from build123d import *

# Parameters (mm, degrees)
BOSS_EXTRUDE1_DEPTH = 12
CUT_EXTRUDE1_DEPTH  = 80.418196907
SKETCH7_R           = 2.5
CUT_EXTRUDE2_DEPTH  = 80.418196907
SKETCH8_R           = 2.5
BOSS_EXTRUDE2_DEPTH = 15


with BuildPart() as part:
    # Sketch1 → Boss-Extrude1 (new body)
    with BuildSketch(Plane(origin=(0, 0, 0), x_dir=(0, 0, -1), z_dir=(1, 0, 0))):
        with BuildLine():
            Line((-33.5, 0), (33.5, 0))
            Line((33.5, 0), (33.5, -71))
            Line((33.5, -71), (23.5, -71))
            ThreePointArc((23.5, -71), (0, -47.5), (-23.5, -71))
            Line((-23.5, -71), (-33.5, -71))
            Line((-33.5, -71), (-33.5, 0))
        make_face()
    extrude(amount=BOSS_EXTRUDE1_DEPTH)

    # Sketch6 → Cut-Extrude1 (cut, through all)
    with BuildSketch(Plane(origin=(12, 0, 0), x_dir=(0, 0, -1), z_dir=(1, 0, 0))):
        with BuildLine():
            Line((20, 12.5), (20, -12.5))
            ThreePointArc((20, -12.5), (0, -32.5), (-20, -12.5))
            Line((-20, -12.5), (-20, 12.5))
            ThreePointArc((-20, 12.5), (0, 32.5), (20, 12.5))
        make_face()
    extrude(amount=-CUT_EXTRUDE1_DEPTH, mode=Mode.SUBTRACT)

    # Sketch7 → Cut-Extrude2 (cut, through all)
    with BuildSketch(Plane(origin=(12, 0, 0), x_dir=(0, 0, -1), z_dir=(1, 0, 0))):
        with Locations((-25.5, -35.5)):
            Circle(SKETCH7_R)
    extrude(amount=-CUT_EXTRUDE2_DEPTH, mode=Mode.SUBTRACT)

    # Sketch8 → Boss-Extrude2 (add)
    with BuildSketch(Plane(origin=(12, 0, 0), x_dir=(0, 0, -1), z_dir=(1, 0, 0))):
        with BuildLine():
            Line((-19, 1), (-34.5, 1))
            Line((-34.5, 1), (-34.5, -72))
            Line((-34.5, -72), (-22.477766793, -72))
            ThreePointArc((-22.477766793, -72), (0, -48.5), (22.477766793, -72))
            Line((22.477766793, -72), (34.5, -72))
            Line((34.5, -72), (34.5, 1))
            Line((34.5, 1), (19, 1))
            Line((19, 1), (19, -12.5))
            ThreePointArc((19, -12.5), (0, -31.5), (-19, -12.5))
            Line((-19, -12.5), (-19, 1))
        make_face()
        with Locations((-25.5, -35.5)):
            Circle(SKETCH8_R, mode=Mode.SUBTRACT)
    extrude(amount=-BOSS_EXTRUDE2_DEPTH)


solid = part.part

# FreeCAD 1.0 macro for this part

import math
import FreeCAD as App
import Part
import Sketcher

V = App.Vector
Q = App.Units.Quantity

doc = App.newDocument("Part")
params = doc.addObject("Spreadsheet::Sheet", "Params")
for row, (alias, value) in enumerate([
    ("sketch1_radius", "23.5 mm"),
    ("sketch1_width", "71 mm"),
    ("sketch1_height", "67 mm"),
    ("pad1_length", "12 mm"),
    ("sketch2_radius", "20 mm"),
    ("sketch2_width", "25 mm"),
    ("sketch3_diameter", "5 mm"),
    ("sketch4_diameter", "5 mm"),
    ("sketch4_radius", "19 mm"),
    ("sketch4_radius2", "22.5 mm"),
    ("sketch4_width", "73 mm"),
    ("sketch4_width2", "13.5 mm"),
    ("pad2_length", "15 mm"),
], start=1):
    params.set(f"A{row}", alias)
    params.set(f"B{row}", "=" + value)
    params.setAlias(f"B{row}", alias)

body = doc.addObject("PartDesign::Body", "Body")

sketch1 = body.newObject("Sketcher::SketchObject", "Sketch")
sketch1.AttachmentSupport = (doc.getObject("YZ_Plane"), [""])
sketch1.MapMode = "FlatFace"
sketch1.addGeometry([
    Part.LineSegment(V(0, -33.5, 0), V(0, 33.5, 0)),
    Part.LineSegment(V(0, 33.5, 0), V(-71, 33.5, 0)),
    Part.LineSegment(V(-71, 33.5, 0), V(-71, 23.5, 0)),
    Part.ArcOfCircle(Part.Circle(V(-71, 0, 0), V(0, 0, 1), 23.5), math.radians(-90), math.radians(90)),
    Part.LineSegment(V(-71, -23.5, 0), V(-71, -33.5, 0)),
    Part.LineSegment(V(-71, -33.5, 0), V(0, -33.5, 0)),
], False)
sketch1.addConstraint([
    Sketcher.Constraint("Coincident", 0, 2, 1, 1),
    Sketcher.Constraint("Coincident", 1, 2, 2, 1),
    Sketcher.Constraint("Coincident", 2, 2, 3, 2),
    Sketcher.Constraint("Coincident", 3, 1, 4, 1),
    Sketcher.Constraint("Coincident", 4, 2, 5, 1),
    Sketcher.Constraint("Coincident", 5, 2, 0, 1),
    Sketcher.Constraint("Vertical", 0),
    Sketcher.Constraint("Horizontal", 1),
    Sketcher.Constraint("Vertical", 2),
    Sketcher.Constraint("Vertical", 4),
    Sketcher.Constraint("Horizontal", 5),
    Sketcher.Constraint("Symmetric", 0, 2, 5, 2, -1, 1),
    Sketcher.Constraint("Symmetric", 2, 2, 3, 1, -1),
    Sketcher.Constraint("Vertical", 3, 3, 1, 2),
    Sketcher.Constraint("Radius", 3, Q("23.5 mm")),
    Sketcher.Constraint("DistanceX", 1, 2, 1, 1, Q("71 mm")),
    Sketcher.Constraint("DistanceY", 0, 1, 0, 2, Q("67 mm")),
])
sketch1.setExpression("Constraints[14]", "Params.sketch1_radius")
sketch1.setExpression("Constraints[15]", "Params.sketch1_width")
sketch1.setExpression("Constraints[16]", "Params.sketch1_height")
pad1 = body.newObject("PartDesign::Pad", "Pad")
pad1.Profile = sketch1
pad1.setExpression("Length", "Params.pad1_length")

sketch2 = body.newObject("Sketcher::SketchObject", "Sketch001")
sketch2.AttachmentSupport = (doc.getObject("YZ_Plane"), [""])
sketch2.MapMode = "FlatFace"
sketch2.AttachmentOffset = App.Placement(V(0, 0, 12), App.Rotation())
sketch2.addGeometry([
    Part.LineSegment(V(-12.5, -20, 0), V(12.5, -20, 0)),
    Part.ArcOfCircle(Part.Circle(V(12.5, 0, 0), V(0, 0, 1), 20), math.radians(-90), math.radians(90)),
    Part.LineSegment(V(12.5, 20, 0), V(-12.5, 20, 0)),
    Part.ArcOfCircle(Part.Circle(V(-12.5, 0, 0), V(0, 0, 1), 20), math.radians(90), math.radians(270)),
], False)
sketch2.addConstraint([
    Sketcher.Constraint("Tangent", 0, 2, 1, 1),
    Sketcher.Constraint("Tangent", 1, 2, 2, 1),
    Sketcher.Constraint("Tangent", 2, 2, 3, 1),
    Sketcher.Constraint("Tangent", 3, 2, 0, 1),
    Sketcher.Constraint("Horizontal", 0),
    Sketcher.Constraint("Horizontal", 2),
    Sketcher.Constraint("Symmetric", 1, 3, 3, 3, -1, 1),
    Sketcher.Constraint("Radius", 1, Q("20 mm")),
    Sketcher.Constraint("DistanceX", 0, 1, 0, 2, Q("25 mm")),
])
sketch2.setExpression("Constraints[7]", "Params.sketch2_radius")
sketch2.setExpression("Constraints[8]", "Params.sketch2_width")
pocket1 = body.newObject("PartDesign::Pocket", "Pocket")
pocket1.Profile = sketch2
pocket1.Type = "ThroughAll"

sketch3 = body.newObject("Sketcher::SketchObject", "Sketch002")
sketch3.AttachmentSupport = (doc.getObject("YZ_Plane"), [""])
sketch3.MapMode = "FlatFace"
sketch3.AttachmentOffset = App.Placement(V(0, 0, 12), App.Rotation())
sketch3.addGeometry(Part.Circle(V(-35.5, 25.5, 0), V(0, 0, 1), 2.5), False)
sketch3.addConstraint([
    Sketcher.Constraint("Diameter", 0, Q("5 mm")),
    Sketcher.Constraint("DistanceX", 0, 3, -1, 1, Q("35.5 mm")),
    Sketcher.Constraint("DistanceY", -1, 1, 0, 3, Q("25.5 mm")),
])
sketch3.setExpression("Constraints[0]", "Params.sketch3_diameter")
pocket2 = body.newObject("PartDesign::Pocket", "Pocket001")
pocket2.Profile = sketch3
pocket2.Type = "ThroughAll"

sketch4 = body.newObject("Sketcher::SketchObject", "Sketch003")
sketch4.AttachmentSupport = (doc.getObject("YZ_Plane"), [""])
sketch4.MapMode = "FlatFace"
sketch4.AttachmentOffset = App.Placement(V(0, 0, 12), App.Rotation())
sketch4.addGeometry([
    Part.LineSegment(V(1, 19, 0), V(1, 34.5, 0)),
    Part.LineSegment(V(1, 34.5, 0), V(-72, 34.5, 0)),
    Part.LineSegment(V(-72, 34.5, 0), V(-72, 22.477767, 0)),
    Part.ArcOfCircle(Part.Circle(V(-71, 0, 0), V(0, 0, 1), 22.5), math.radians(-92.547318), math.radians(92.547318)),
    Part.LineSegment(V(-72, -22.477767, 0), V(-72, -34.5, 0)),
    Part.LineSegment(V(-72, -34.5, 0), V(1, -34.5, 0)),
    Part.LineSegment(V(1, -34.5, 0), V(1, -19, 0)),
    Part.LineSegment(V(1, -19, 0), V(-12.5, -19, 0)),
    Part.ArcOfCircle(Part.Circle(V(-12.5, 0, 0), V(0, 0, 1), 19), math.radians(90), math.radians(270)),
    Part.LineSegment(V(-12.5, 19, 0), V(1, 19, 0)),
    Part.Circle(V(-35.5, 25.5, 0), V(0, 0, 1), 2.5),
], False)
sketch4.addConstraint([
    Sketcher.Constraint("Coincident", 0, 2, 1, 1),
    Sketcher.Constraint("Coincident", 1, 2, 2, 1),
    Sketcher.Constraint("Coincident", 2, 2, 3, 2),
    Sketcher.Constraint("Coincident", 3, 1, 4, 1),
    Sketcher.Constraint("Coincident", 4, 2, 5, 1),
    Sketcher.Constraint("Coincident", 5, 2, 6, 1),
    Sketcher.Constraint("Coincident", 6, 2, 7, 1),
    Sketcher.Constraint("Tangent", 7, 2, 8, 2),
    Sketcher.Constraint("Tangent", 8, 1, 9, 1),
    Sketcher.Constraint("Coincident", 9, 2, 0, 1),
    Sketcher.Constraint("Vertical", 0),
    Sketcher.Constraint("Horizontal", 1),
    Sketcher.Constraint("Vertical", 2),
    Sketcher.Constraint("Vertical", 4),
    Sketcher.Constraint("Horizontal", 5),
    Sketcher.Constraint("Vertical", 6),
    Sketcher.Constraint("Horizontal", 7),
    Sketcher.Constraint("Horizontal", 9),
    Sketcher.Constraint("Symmetric", 2, 2, 3, 1, -1),
    Sketcher.Constraint("Symmetric", 0, 2, 5, 2, -1),
    Sketcher.Constraint("PointOnObject", 8, 3, -1),
    Sketcher.Constraint("Diameter", 10, Q("5 mm")),
    Sketcher.Constraint("Radius", 8, Q("19 mm")),
    Sketcher.Constraint("Radius", 3, Q("22.5 mm")),
    Sketcher.Constraint("DistanceX", 1, 2, 1, 1, Q("73 mm")),
    Sketcher.Constraint("DistanceX", 7, 2, 7, 1, Q("13.5 mm")),
    Sketcher.Constraint("DistanceY", 0, 1, 0, 2, Q("15.5 mm")),
    Sketcher.Constraint("DistanceX", 3, 3, -1, 1, Q("71 mm")),
    Sketcher.Constraint("DistanceX", -1, 1, 0, 2, Q("1 mm")),
    Sketcher.Constraint("DistanceX", 10, 3, 8, 3, Q("23 mm")),
    Sketcher.Constraint("DistanceY", 10, 3, 0, 2, Q("9 mm")),
])
sketch4.setExpression("Constraints[21]", "Params.sketch4_diameter")
sketch4.setExpression("Constraints[22]", "Params.sketch4_radius")
sketch4.setExpression("Constraints[23]", "Params.sketch4_radius2")
sketch4.setExpression("Constraints[24]", "Params.sketch4_width")
sketch4.setExpression("Constraints[25]", "Params.sketch4_width2")
pad2 = body.newObject("PartDesign::Pad", "Pad001")
pad2.Profile = sketch4
pad2.setExpression("Length", "Params.pad2_length")
pad2.Reversed = True

doc.recompute()
